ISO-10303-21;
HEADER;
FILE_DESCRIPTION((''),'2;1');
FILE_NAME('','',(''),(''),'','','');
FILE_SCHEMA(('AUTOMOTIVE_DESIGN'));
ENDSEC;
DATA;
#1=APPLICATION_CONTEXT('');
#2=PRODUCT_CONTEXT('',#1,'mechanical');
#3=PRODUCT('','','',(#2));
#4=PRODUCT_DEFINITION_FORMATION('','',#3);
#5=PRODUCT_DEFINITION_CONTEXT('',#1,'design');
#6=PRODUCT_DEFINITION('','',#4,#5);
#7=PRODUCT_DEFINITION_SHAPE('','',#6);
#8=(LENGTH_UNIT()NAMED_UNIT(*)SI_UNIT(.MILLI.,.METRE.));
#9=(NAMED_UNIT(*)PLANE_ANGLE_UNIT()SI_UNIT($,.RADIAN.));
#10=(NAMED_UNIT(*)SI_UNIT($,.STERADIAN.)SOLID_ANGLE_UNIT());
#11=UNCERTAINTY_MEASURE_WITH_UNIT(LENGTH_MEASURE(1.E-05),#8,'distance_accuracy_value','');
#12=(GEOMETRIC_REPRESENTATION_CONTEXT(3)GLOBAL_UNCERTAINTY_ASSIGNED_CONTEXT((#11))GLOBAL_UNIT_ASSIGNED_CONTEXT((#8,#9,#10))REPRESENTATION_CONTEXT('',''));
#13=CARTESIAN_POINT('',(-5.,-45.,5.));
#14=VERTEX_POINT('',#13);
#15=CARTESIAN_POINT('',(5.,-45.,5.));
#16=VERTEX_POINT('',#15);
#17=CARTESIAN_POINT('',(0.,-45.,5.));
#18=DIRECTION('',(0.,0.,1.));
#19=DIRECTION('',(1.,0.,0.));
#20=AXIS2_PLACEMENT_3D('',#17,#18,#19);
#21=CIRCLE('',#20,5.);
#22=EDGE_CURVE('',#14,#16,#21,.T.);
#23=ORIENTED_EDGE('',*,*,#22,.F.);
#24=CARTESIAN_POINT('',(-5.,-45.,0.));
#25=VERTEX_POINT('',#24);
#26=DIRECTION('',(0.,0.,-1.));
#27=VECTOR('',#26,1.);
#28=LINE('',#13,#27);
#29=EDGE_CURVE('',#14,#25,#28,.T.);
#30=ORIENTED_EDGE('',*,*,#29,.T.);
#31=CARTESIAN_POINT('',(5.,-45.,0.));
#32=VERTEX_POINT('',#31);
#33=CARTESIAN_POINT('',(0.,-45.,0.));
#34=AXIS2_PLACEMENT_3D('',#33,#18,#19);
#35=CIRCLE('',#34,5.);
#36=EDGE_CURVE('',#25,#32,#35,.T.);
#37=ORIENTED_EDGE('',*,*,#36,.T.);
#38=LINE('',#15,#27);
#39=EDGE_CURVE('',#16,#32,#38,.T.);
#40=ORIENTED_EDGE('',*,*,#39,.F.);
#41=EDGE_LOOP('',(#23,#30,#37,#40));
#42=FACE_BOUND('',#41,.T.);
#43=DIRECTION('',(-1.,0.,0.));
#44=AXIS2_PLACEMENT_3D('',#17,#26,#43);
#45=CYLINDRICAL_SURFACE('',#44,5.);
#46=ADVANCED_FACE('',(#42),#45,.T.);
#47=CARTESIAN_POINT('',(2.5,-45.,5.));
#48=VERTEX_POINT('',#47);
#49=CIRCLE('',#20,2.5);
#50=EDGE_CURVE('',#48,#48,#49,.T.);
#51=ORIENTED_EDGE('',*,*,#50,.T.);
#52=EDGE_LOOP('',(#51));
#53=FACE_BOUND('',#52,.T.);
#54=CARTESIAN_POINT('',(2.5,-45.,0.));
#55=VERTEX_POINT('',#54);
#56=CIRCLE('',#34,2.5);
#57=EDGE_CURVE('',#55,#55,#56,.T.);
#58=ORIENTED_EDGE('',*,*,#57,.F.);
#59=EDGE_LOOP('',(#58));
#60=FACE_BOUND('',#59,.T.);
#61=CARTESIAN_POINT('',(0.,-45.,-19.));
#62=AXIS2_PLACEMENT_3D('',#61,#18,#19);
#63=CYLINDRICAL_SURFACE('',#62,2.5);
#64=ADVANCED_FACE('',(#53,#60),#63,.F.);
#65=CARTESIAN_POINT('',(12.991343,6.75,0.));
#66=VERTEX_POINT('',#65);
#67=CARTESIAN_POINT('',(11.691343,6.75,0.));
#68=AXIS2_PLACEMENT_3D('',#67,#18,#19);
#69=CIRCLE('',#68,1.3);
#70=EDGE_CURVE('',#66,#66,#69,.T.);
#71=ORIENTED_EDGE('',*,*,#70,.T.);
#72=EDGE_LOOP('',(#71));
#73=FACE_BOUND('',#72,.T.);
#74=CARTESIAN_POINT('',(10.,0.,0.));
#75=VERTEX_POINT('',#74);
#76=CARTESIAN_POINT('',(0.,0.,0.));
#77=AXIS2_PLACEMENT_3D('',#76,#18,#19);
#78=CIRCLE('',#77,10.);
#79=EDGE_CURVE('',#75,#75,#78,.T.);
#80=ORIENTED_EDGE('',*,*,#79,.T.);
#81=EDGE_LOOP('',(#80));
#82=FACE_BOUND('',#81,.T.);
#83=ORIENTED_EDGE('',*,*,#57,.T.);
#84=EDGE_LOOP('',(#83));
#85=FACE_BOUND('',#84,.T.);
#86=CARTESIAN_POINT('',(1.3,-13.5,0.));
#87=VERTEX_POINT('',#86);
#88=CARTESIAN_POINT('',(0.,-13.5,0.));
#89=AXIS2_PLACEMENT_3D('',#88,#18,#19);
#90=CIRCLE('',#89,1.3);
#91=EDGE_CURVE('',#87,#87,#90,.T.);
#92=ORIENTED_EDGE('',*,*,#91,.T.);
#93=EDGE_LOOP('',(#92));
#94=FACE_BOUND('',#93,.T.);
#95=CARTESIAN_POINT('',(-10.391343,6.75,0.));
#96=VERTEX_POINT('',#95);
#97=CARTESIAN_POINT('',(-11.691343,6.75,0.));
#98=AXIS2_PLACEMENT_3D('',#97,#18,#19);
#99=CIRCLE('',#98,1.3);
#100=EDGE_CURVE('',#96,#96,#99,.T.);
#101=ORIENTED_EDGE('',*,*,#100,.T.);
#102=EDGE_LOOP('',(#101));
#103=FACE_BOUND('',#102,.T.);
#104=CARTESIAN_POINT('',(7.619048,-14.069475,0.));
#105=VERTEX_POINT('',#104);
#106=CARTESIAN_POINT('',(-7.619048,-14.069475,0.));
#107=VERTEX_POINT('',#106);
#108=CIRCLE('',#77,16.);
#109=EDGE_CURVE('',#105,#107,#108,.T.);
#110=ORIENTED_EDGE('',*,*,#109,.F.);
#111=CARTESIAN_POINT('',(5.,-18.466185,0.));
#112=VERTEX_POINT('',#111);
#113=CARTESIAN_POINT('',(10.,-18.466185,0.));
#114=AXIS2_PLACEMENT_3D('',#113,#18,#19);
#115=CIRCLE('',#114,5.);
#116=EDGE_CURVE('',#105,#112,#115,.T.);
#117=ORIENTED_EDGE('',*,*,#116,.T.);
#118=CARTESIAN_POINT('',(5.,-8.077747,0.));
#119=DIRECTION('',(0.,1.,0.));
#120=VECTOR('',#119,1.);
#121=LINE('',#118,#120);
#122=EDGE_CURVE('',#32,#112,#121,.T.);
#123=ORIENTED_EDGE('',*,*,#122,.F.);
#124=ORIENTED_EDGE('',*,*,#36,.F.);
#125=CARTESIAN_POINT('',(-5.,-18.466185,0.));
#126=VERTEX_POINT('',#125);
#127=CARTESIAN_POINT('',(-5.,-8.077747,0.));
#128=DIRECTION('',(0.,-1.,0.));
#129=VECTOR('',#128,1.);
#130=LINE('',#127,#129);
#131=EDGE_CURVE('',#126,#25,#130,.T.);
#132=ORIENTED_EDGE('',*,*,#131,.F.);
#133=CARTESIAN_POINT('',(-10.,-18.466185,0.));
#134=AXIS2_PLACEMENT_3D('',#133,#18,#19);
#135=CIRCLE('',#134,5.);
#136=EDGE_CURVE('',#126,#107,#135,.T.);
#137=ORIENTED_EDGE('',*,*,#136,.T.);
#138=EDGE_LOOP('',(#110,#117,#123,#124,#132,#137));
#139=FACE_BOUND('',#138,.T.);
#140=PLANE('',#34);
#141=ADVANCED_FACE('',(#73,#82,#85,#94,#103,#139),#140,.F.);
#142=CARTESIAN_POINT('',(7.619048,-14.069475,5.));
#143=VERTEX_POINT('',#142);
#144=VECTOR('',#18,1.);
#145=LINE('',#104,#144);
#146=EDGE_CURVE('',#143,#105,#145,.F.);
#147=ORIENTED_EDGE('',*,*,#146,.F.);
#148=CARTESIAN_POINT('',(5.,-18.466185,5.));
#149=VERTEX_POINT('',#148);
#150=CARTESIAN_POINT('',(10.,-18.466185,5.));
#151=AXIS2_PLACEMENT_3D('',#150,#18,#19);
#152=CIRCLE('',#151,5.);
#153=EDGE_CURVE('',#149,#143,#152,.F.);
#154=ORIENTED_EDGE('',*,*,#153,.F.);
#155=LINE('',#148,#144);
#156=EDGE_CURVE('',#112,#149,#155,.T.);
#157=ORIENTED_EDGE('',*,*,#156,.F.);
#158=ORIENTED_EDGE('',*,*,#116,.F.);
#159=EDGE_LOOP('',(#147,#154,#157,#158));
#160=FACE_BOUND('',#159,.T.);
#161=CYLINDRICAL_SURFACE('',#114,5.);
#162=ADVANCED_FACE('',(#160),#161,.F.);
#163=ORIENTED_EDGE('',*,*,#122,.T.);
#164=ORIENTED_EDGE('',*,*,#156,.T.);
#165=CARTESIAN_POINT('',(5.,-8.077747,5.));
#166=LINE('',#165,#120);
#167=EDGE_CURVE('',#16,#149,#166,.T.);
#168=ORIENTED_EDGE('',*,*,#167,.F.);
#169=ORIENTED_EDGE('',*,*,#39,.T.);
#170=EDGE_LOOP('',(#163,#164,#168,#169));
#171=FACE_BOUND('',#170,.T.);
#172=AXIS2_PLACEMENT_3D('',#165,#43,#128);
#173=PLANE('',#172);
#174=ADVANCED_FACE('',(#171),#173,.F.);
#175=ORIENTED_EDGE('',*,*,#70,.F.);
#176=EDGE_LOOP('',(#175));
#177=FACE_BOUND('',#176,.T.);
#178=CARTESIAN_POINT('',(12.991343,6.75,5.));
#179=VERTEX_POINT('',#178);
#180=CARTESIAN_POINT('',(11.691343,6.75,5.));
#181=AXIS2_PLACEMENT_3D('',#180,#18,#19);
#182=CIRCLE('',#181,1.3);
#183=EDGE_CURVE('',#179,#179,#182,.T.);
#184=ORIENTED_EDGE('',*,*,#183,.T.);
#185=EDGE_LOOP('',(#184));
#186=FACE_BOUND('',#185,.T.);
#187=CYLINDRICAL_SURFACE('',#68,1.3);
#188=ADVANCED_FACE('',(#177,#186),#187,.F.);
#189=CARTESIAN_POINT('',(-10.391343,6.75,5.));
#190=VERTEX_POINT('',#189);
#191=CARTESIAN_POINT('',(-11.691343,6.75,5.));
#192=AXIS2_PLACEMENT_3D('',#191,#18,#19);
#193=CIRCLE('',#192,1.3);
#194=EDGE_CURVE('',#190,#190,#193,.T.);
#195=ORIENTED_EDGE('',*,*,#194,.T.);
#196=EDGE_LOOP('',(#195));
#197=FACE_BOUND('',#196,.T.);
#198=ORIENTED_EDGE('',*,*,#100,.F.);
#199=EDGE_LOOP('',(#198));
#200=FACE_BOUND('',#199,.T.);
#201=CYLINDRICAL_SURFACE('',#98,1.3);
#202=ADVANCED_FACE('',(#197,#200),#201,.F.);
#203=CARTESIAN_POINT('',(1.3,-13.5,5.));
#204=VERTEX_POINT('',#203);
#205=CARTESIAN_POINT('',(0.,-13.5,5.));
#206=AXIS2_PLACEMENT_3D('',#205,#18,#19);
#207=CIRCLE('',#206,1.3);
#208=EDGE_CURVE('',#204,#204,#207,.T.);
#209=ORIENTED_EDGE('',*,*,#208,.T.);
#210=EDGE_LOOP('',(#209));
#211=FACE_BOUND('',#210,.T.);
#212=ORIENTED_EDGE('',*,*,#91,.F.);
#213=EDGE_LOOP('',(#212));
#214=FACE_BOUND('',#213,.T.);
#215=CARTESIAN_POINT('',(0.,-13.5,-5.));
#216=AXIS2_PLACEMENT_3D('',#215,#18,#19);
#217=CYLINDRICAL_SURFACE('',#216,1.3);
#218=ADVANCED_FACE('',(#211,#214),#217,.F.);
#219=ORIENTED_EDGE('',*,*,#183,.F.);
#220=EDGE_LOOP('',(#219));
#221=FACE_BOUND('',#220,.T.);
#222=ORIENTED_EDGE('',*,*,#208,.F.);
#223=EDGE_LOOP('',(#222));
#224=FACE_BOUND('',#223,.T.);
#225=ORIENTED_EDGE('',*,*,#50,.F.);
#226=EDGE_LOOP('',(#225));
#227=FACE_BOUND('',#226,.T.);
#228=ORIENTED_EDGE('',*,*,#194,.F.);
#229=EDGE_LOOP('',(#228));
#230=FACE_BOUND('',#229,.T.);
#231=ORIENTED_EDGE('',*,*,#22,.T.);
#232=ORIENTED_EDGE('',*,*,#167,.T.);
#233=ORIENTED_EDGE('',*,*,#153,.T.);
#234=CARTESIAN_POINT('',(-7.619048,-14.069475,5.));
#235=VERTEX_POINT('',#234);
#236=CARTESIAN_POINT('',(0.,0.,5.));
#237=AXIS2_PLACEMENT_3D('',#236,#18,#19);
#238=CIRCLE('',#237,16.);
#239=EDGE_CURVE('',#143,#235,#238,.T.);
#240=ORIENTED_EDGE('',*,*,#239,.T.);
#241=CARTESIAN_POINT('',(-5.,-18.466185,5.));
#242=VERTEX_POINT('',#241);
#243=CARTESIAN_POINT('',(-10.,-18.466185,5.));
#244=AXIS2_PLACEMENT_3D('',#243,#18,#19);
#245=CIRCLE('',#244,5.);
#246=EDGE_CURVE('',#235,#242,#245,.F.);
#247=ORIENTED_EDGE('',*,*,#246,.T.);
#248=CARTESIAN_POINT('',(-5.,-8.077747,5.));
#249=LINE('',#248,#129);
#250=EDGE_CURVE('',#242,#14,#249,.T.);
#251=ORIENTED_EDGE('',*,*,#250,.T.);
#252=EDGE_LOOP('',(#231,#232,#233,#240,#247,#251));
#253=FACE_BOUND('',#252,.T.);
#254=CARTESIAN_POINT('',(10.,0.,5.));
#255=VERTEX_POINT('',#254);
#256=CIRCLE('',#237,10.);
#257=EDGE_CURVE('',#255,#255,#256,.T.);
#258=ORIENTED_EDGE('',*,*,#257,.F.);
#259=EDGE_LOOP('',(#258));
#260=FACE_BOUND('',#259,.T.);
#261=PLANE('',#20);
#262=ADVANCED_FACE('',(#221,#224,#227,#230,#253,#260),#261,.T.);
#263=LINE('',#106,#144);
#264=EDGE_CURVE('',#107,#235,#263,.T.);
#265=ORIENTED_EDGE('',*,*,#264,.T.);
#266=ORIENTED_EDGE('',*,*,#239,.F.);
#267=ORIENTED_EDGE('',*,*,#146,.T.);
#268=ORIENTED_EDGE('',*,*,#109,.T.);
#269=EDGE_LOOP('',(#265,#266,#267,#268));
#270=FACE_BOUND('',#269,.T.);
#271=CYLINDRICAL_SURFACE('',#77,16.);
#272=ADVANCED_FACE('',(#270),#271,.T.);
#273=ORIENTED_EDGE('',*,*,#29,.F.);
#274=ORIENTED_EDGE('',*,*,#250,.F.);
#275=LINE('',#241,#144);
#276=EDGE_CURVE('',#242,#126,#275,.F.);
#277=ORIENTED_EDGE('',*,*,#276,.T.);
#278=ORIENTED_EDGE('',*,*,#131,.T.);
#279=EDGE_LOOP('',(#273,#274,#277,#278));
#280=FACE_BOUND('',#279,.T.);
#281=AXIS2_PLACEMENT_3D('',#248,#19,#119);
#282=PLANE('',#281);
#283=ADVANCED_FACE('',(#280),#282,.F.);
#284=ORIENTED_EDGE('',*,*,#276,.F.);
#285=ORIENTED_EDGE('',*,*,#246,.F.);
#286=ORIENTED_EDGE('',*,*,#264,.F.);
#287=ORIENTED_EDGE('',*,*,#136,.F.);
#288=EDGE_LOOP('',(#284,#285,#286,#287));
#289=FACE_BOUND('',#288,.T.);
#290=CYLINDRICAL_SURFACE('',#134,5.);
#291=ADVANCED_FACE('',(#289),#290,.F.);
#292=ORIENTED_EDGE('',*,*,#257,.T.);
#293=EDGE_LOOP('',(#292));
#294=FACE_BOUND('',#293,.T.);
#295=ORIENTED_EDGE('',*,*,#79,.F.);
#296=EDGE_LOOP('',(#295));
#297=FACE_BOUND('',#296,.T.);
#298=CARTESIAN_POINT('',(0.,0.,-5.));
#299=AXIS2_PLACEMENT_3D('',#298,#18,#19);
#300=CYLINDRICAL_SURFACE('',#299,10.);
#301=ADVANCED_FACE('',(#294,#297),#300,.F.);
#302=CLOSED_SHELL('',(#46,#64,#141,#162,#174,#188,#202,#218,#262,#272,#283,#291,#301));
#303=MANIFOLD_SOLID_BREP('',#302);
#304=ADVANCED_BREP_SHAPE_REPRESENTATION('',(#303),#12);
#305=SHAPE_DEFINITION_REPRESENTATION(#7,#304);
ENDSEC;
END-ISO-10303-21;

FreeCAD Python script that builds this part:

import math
import FreeCAD as App
import Part
import Sketcher

V = App.Vector
Q = App.Units.Quantity


def edges_at(feature, points):
    """Names of the edges that pass closest to the given points."""
    edges = feature.Shape.Edges
    near = lambda p: min(range(len(edges)), key=lambda i: edges[i].distToShape(Part.Vertex(*p))[0])
    return sorted({f"Edge{near(p) + 1}" for p in points})

doc = App.newDocument("Part")
body = doc.addObject("PartDesign::Body", "Body")

# Sketch on XY plane
sketch1 = body.newObject("Sketcher::SketchObject", "Sketch")
sketch1.AttachmentSupport = (doc.getObject("XY_Plane"), [""])
sketch1.MapMode = "FlatFace"
sketch1.addGeometry([
    Part.LineSegment(V(5, -45, 0), V(5, -8, 0)),
    Part.ArcOfCircle(Part.Circle(V(0, 0, 0), V(0, 0, 1), 10), math.radians(-58), math.radians(238)),
    Part.LineSegment(V(-5, -8, 0), V(-5, -45, 0)),
    Part.ArcOfCircle(Part.Circle(V(0, -45, 0), V(0, 0, 1), 5), math.radians(180), math.radians(360)),
], False)
sketch1.addConstraint([
    Sketcher.Constraint("Coincident", 0, 2, 1, 1),
    Sketcher.Constraint("Coincident", 1, 2, 2, 1),
    Sketcher.Constraint("Tangent", 2, 2, 3, 1),
    Sketcher.Constraint("Tangent", 3, 2, 0, 1),
    Sketcher.Constraint("Vertical", 0),
    Sketcher.Constraint("Vertical", 2),
    Sketcher.Constraint("Coincident", 1, 3, -1, 1),
    Sketcher.Constraint("PointOnObject", 3, 3, -2),
    Sketcher.Constraint("Radius", 3, Q("5 mm")),
    Sketcher.Constraint("Radius", 1, Q("9.5 mm")),
    Sketcher.Constraint("DistanceY", 3, 3, -1, 1, Q("45 mm")),
])
pad1 = body.newObject("PartDesign::Pad", "Pad")
pad1.Profile = sketch1
pad1.Length = 5

# Sketch on XY plane
sketch2 = body.newObject("Sketcher::SketchObject", "Sketch001")
sketch2.AttachmentSupport = (doc.getObject("XY_Plane"), [""])
sketch2.MapMode = "FlatFace"
sketch2.AttachmentOffset = App.Placement(V(0, 0, 5), App.Rotation())
sketch2.addGeometry(Part.Circle(V(0, -45, 0), V(0, 0, 1), 2.5), False)
sketch2.addConstraint([
    Sketcher.Constraint("PointOnObject", 0, 3, -2),
    Sketcher.Constraint("Diameter", 0, Q("5 mm")),
    Sketcher.Constraint("DistanceY", 0, 3, -1, 1, Q("45 mm")),
])
pocket1 = body.newObject("PartDesign::Pocket", "Pocket")
pocket1.Profile = sketch2
pocket1.Length = 24

# Sketch on XY plane
sketch3 = body.newObject("Sketcher::SketchObject", "Sketch002")
sketch3.AttachmentSupport = (doc.getObject("XY_Plane"), [""])
sketch3.MapMode = "FlatFace"
sketch3.AttachmentOffset = App.Placement(V(0, 0, 5), App.Rotation())
sketch3.addGeometry([
    Part.Circle(V(0, 6.2, 0), V(0, 0, 1), 1.5),
    Part.Circle(V(0, -6.2, 0), V(0, 0, 1), 1.5),
], False)
sketch3.addConstraint([
    Sketcher.Constraint("Equal", 0, 1),
    Sketcher.Constraint("Symmetric", 0, 3, 1, 3, -1, 1),
    Sketcher.Constraint("PointOnObject", 0, 3, -2),
    Sketcher.Constraint("Diameter", 0, Q("3.05 mm")),
    Sketcher.Constraint("DistanceY", 1, 3, 0, 3, Q("12.5 mm")),
])
pocket2 = body.newObject("PartDesign::Pocket", "Pocket001")
pocket2.Profile = sketch3
pocket2.Length = 5

# Sketch on XY plane
sketch4 = body.newObject("Sketcher::SketchObject", "Sketch003")
sketch4.AttachmentSupport = (doc.getObject("XY_Plane"), [""])
sketch4.MapMode = "FlatFace"
sketch4.AttachmentOffset = App.Placement(V(0, 0, 5), App.Rotation())
sketch4.addGeometry(Part.Circle(V(0, 0, 0), V(0, 0, 1), 2.5), False)
sketch4.addConstraint([
    Sketcher.Constraint("Coincident", 0, 3, -1, 1),
    Sketcher.Constraint("Diameter", 0, Q("5 mm")),
])
pocket3 = body.newObject("PartDesign::Pocket", "Pocket002")
pocket3.Profile = sketch4
pocket3.Length = 5
doc.recompute()

fillet = body.newObject("PartDesign::Fillet", "Fillet")
fillet.Base = (pocket3, edges_at(pocket3, [(-5, -8.078, 2.5), (5, -8.078, 2.5)]))
fillet.Radius = 5

# Sketch on XY plane
sketch5 = body.newObject("Sketcher::SketchObject", "Sketch004")
sketch5.AttachmentSupport = (doc.getObject("XY_Plane"), [""])
sketch5.MapMode = "FlatFace"
sketch5.AttachmentOffset = App.Placement(V(0, 0, 5), App.Rotation())
sketch5.addGeometry([
    Part.Circle(V(0, -13.5, 0), V(0, 0, 1), 1.3),
    Part.Circle(V(0, 0, 0), V(0, 0, 1), 10),
], False)
sketch5.addConstraint([
    Sketcher.Constraint("Coincident", 1, 3, -1, 1),
    Sketcher.Constraint("PointOnObject", 0, 3, -2),
    Sketcher.Constraint("Diameter", 1, Q("20 mm")),
    Sketcher.Constraint("Diameter", 0, Q("2.6 mm")),
    Sketcher.Constraint("DistanceY", 0, 3, -1, 1, Q("13.5 mm")),
])
pocket4 = body.newObject("PartDesign::Pocket", "Pocket003")
pocket4.Profile = sketch5
pocket4.Length = 10

# Sketch on XY plane
sketch6 = body.newObject("Sketcher::SketchObject", "Sketch005")
sketch6.AttachmentSupport = (doc.getObject("XY_Plane"), [""])
sketch6.MapMode = "FlatFace"
sketch6.AttachmentOffset = App.Placement(V(0, 0, 5), App.Rotation())
sketch6.addGeometry([
    Part.Circle(V(0, 0, 0), V(0, 0, 1), 16),  # 0
    Part.Circle(V(0, -13.5, 0), V(0, 0, 1), 1.3),  # 1
    Part.Circle(V(0, 0, 0), V(0, 0, 1), 10),  # 2
    Part.Circle(V(-11.7, 6.8, 0), V(0, 0, 1), 1.3),  # 3
    Part.Circle(V(11.7, 6.8, 0), V(0, 0, 1), 1.3),  # 4
], False)
sketch6.addConstraint([
    Sketcher.Constraint("Coincident", 0, 3, -1, 1),
    Sketcher.Constraint("Coincident", 2, 3, -1, 1),
    Sketcher.Constraint("Equal", 1, 3),
    Sketcher.Constraint("Equal", 3, 4),
    Sketcher.Constraint("Symmetric", 3, 3, 4, 3, -2),
    Sketcher.Constraint("PointOnObject", 1, 3, -2),
    Sketcher.Constraint("Diameter", 0, Q("32 mm")),
    Sketcher.Constraint("Diameter", 2, Q("20 mm")),
    Sketcher.Constraint("Diameter", 1, Q("2.6 mm")),
    Sketcher.Constraint("DistanceY", 1, 3, -1, 1, Q("13.5 mm")),
    Sketcher.Constraint("DistanceY", -1, 1, 3, 3, Q("6.75 mm")),
    Sketcher.Constraint("DistanceX", 3, 3, -1, 1, Q("11.691343 mm")),
])
pad2 = body.newObject("PartDesign::Pad", "Pad001")
pad2.Profile = sketch6
pad2.Length = 5
pad2.Reversed = True
doc.recompute()

fillet2 = body.newObject("PartDesign::Fillet", "Fillet001")
fillet2.Base = (pad2, edges_at(pad2, [(5, -15.199, 2.5), (-5, -15.199, 2.5)]))
fillet2.Radius = 5

doc.recompute()
